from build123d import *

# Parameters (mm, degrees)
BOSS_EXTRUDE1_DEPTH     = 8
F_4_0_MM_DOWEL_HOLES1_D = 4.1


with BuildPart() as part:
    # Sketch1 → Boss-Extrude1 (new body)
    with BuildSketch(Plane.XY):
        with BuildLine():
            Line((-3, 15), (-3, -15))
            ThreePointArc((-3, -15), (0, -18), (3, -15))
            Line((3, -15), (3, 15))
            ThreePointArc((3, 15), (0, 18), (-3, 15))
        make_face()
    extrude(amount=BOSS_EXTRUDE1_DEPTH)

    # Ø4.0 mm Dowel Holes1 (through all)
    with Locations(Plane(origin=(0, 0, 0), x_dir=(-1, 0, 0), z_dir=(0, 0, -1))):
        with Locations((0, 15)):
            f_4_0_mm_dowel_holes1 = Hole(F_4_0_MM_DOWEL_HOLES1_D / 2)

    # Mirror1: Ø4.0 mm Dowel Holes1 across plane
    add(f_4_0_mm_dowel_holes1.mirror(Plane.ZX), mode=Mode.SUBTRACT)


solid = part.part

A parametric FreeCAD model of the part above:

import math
import FreeCAD as App
import Part
import Sketcher
from FreeCAD import Vector

doc = App.newDocument("Part")
params = doc.addObject("Spreadsheet::Sheet", "Params")
for row, (alias, value) in enumerate([
    ("sketch1_radius", "3 mm"),
    ("sketch1_height", "30 mm"),
    ("pad1_length", "8 mm"),
    ("sketch2_diameter", "4.1 mm"),
    ("hole_diameter", "4.1 mm"),
], start=1):
    params.set(f"A{row}", alias)
    params.set(f"B{row}", "=" + value)
    params.setAlias(f"B{row}", alias)

body = doc.addObject("PartDesign::Body", "Body")

sketch1 = body.newObject("Sketcher::SketchObject", "Sketch")
sketch1.AttachmentSupport = (doc.getObject("XY_Plane"), [""])
sketch1.MapMode = "FlatFace"
sketch1.addGeometry(Part.LineSegment(Vector(-3, 15, 0), Vector(-3, -15, 0)), False)
sketch1.addGeometry(Part.ArcOfCircle(Part.Circle(Vector(0, -15, 0), Vector(0, 0, 1), 3), math.radians(180), math.radians(360)), False)
sketch1.addGeometry(Part.LineSegment(Vector(3, -15, 0), Vector(3, 15, 0)), False)
sketch1.addGeometry(Part.ArcOfCircle(Part.Circle(Vector(0, 15, 0), Vector(0, 0, 1), 3), math.radians(0), math.radians(180)), False)
sketch1.addConstraint(Sketcher.Constraint("Tangent", 0, 2, 1, 1))
sketch1.addConstraint(Sketcher.Constraint("Tangent", 1, 2, 2, 1))
sketch1.addConstraint(Sketcher.Constraint("Tangent", 2, 2, 3, 1))
sketch1.addConstraint(Sketcher.Constraint("Tangent", 3, 2, 0, 1))
sketch1.addConstraint(Sketcher.Constraint("Vertical", 0))
sketch1.addConstraint(Sketcher.Constraint("Vertical", 2))
sketch1.addConstraint(Sketcher.Constraint("Symmetric", 1, 3, 3, 3, -1, 1))
sketch1.addConstraint(Sketcher.Constraint("Radius", 1, 3.0))
sketch1.addConstraint(Sketcher.Constraint("DistanceY", 0, 2, 0, 1, 30.0))
sketch1.setExpression("Constraints[7]", "Params.sketch1_radius")
sketch1.setExpression("Constraints[8]", "Params.sketch1_height")
pad1 = body.newObject("PartDesign::Pad", "Pad")
pad1.Profile = sketch1
pad1.setExpression("Length", "Params.pad1_length")

sketch2 = body.newObject("Sketcher::SketchObject", "Sketch001")
sketch2.AttachmentSupport = (doc.getObject("XY_Plane"), [""])
sketch2.MapMode = "FlatFace"
sketch2.addGeometry(Part.Circle(Vector(0, 15, 0), Vector(0, 0, 1), 2), False)
sketch2.addConstraint(Sketcher.Constraint("PointOnObject", 0, 3, -2))
sketch2.addConstraint(Sketcher.Constraint("Diameter", 0, 4.1))
sketch2.addConstraint(Sketcher.Constraint("DistanceY", -1, 1, 0, 3, 15.0))
sketch2.setExpression("Constraints[1]", "Params.sketch2_diameter")
doc.recompute()
hole = body.newObject("PartDesign::Hole", "Hole")
hole.Profile = sketch2
hole.ThreadType = "None"
hole.setExpression("Diameter", "Params.hole_diameter")
hole.DepthType = "ThroughAll"
hole.Reversed = True
doc.recompute()

mirrored = body.newObject("PartDesign::Mirrored", "Mirrored")
mirrored.Originals = [hole]
mirrored.MirrorPlane = (doc.getObject("XZ_Plane"), [""])
body.Tip = mirrored

doc.recompute()
